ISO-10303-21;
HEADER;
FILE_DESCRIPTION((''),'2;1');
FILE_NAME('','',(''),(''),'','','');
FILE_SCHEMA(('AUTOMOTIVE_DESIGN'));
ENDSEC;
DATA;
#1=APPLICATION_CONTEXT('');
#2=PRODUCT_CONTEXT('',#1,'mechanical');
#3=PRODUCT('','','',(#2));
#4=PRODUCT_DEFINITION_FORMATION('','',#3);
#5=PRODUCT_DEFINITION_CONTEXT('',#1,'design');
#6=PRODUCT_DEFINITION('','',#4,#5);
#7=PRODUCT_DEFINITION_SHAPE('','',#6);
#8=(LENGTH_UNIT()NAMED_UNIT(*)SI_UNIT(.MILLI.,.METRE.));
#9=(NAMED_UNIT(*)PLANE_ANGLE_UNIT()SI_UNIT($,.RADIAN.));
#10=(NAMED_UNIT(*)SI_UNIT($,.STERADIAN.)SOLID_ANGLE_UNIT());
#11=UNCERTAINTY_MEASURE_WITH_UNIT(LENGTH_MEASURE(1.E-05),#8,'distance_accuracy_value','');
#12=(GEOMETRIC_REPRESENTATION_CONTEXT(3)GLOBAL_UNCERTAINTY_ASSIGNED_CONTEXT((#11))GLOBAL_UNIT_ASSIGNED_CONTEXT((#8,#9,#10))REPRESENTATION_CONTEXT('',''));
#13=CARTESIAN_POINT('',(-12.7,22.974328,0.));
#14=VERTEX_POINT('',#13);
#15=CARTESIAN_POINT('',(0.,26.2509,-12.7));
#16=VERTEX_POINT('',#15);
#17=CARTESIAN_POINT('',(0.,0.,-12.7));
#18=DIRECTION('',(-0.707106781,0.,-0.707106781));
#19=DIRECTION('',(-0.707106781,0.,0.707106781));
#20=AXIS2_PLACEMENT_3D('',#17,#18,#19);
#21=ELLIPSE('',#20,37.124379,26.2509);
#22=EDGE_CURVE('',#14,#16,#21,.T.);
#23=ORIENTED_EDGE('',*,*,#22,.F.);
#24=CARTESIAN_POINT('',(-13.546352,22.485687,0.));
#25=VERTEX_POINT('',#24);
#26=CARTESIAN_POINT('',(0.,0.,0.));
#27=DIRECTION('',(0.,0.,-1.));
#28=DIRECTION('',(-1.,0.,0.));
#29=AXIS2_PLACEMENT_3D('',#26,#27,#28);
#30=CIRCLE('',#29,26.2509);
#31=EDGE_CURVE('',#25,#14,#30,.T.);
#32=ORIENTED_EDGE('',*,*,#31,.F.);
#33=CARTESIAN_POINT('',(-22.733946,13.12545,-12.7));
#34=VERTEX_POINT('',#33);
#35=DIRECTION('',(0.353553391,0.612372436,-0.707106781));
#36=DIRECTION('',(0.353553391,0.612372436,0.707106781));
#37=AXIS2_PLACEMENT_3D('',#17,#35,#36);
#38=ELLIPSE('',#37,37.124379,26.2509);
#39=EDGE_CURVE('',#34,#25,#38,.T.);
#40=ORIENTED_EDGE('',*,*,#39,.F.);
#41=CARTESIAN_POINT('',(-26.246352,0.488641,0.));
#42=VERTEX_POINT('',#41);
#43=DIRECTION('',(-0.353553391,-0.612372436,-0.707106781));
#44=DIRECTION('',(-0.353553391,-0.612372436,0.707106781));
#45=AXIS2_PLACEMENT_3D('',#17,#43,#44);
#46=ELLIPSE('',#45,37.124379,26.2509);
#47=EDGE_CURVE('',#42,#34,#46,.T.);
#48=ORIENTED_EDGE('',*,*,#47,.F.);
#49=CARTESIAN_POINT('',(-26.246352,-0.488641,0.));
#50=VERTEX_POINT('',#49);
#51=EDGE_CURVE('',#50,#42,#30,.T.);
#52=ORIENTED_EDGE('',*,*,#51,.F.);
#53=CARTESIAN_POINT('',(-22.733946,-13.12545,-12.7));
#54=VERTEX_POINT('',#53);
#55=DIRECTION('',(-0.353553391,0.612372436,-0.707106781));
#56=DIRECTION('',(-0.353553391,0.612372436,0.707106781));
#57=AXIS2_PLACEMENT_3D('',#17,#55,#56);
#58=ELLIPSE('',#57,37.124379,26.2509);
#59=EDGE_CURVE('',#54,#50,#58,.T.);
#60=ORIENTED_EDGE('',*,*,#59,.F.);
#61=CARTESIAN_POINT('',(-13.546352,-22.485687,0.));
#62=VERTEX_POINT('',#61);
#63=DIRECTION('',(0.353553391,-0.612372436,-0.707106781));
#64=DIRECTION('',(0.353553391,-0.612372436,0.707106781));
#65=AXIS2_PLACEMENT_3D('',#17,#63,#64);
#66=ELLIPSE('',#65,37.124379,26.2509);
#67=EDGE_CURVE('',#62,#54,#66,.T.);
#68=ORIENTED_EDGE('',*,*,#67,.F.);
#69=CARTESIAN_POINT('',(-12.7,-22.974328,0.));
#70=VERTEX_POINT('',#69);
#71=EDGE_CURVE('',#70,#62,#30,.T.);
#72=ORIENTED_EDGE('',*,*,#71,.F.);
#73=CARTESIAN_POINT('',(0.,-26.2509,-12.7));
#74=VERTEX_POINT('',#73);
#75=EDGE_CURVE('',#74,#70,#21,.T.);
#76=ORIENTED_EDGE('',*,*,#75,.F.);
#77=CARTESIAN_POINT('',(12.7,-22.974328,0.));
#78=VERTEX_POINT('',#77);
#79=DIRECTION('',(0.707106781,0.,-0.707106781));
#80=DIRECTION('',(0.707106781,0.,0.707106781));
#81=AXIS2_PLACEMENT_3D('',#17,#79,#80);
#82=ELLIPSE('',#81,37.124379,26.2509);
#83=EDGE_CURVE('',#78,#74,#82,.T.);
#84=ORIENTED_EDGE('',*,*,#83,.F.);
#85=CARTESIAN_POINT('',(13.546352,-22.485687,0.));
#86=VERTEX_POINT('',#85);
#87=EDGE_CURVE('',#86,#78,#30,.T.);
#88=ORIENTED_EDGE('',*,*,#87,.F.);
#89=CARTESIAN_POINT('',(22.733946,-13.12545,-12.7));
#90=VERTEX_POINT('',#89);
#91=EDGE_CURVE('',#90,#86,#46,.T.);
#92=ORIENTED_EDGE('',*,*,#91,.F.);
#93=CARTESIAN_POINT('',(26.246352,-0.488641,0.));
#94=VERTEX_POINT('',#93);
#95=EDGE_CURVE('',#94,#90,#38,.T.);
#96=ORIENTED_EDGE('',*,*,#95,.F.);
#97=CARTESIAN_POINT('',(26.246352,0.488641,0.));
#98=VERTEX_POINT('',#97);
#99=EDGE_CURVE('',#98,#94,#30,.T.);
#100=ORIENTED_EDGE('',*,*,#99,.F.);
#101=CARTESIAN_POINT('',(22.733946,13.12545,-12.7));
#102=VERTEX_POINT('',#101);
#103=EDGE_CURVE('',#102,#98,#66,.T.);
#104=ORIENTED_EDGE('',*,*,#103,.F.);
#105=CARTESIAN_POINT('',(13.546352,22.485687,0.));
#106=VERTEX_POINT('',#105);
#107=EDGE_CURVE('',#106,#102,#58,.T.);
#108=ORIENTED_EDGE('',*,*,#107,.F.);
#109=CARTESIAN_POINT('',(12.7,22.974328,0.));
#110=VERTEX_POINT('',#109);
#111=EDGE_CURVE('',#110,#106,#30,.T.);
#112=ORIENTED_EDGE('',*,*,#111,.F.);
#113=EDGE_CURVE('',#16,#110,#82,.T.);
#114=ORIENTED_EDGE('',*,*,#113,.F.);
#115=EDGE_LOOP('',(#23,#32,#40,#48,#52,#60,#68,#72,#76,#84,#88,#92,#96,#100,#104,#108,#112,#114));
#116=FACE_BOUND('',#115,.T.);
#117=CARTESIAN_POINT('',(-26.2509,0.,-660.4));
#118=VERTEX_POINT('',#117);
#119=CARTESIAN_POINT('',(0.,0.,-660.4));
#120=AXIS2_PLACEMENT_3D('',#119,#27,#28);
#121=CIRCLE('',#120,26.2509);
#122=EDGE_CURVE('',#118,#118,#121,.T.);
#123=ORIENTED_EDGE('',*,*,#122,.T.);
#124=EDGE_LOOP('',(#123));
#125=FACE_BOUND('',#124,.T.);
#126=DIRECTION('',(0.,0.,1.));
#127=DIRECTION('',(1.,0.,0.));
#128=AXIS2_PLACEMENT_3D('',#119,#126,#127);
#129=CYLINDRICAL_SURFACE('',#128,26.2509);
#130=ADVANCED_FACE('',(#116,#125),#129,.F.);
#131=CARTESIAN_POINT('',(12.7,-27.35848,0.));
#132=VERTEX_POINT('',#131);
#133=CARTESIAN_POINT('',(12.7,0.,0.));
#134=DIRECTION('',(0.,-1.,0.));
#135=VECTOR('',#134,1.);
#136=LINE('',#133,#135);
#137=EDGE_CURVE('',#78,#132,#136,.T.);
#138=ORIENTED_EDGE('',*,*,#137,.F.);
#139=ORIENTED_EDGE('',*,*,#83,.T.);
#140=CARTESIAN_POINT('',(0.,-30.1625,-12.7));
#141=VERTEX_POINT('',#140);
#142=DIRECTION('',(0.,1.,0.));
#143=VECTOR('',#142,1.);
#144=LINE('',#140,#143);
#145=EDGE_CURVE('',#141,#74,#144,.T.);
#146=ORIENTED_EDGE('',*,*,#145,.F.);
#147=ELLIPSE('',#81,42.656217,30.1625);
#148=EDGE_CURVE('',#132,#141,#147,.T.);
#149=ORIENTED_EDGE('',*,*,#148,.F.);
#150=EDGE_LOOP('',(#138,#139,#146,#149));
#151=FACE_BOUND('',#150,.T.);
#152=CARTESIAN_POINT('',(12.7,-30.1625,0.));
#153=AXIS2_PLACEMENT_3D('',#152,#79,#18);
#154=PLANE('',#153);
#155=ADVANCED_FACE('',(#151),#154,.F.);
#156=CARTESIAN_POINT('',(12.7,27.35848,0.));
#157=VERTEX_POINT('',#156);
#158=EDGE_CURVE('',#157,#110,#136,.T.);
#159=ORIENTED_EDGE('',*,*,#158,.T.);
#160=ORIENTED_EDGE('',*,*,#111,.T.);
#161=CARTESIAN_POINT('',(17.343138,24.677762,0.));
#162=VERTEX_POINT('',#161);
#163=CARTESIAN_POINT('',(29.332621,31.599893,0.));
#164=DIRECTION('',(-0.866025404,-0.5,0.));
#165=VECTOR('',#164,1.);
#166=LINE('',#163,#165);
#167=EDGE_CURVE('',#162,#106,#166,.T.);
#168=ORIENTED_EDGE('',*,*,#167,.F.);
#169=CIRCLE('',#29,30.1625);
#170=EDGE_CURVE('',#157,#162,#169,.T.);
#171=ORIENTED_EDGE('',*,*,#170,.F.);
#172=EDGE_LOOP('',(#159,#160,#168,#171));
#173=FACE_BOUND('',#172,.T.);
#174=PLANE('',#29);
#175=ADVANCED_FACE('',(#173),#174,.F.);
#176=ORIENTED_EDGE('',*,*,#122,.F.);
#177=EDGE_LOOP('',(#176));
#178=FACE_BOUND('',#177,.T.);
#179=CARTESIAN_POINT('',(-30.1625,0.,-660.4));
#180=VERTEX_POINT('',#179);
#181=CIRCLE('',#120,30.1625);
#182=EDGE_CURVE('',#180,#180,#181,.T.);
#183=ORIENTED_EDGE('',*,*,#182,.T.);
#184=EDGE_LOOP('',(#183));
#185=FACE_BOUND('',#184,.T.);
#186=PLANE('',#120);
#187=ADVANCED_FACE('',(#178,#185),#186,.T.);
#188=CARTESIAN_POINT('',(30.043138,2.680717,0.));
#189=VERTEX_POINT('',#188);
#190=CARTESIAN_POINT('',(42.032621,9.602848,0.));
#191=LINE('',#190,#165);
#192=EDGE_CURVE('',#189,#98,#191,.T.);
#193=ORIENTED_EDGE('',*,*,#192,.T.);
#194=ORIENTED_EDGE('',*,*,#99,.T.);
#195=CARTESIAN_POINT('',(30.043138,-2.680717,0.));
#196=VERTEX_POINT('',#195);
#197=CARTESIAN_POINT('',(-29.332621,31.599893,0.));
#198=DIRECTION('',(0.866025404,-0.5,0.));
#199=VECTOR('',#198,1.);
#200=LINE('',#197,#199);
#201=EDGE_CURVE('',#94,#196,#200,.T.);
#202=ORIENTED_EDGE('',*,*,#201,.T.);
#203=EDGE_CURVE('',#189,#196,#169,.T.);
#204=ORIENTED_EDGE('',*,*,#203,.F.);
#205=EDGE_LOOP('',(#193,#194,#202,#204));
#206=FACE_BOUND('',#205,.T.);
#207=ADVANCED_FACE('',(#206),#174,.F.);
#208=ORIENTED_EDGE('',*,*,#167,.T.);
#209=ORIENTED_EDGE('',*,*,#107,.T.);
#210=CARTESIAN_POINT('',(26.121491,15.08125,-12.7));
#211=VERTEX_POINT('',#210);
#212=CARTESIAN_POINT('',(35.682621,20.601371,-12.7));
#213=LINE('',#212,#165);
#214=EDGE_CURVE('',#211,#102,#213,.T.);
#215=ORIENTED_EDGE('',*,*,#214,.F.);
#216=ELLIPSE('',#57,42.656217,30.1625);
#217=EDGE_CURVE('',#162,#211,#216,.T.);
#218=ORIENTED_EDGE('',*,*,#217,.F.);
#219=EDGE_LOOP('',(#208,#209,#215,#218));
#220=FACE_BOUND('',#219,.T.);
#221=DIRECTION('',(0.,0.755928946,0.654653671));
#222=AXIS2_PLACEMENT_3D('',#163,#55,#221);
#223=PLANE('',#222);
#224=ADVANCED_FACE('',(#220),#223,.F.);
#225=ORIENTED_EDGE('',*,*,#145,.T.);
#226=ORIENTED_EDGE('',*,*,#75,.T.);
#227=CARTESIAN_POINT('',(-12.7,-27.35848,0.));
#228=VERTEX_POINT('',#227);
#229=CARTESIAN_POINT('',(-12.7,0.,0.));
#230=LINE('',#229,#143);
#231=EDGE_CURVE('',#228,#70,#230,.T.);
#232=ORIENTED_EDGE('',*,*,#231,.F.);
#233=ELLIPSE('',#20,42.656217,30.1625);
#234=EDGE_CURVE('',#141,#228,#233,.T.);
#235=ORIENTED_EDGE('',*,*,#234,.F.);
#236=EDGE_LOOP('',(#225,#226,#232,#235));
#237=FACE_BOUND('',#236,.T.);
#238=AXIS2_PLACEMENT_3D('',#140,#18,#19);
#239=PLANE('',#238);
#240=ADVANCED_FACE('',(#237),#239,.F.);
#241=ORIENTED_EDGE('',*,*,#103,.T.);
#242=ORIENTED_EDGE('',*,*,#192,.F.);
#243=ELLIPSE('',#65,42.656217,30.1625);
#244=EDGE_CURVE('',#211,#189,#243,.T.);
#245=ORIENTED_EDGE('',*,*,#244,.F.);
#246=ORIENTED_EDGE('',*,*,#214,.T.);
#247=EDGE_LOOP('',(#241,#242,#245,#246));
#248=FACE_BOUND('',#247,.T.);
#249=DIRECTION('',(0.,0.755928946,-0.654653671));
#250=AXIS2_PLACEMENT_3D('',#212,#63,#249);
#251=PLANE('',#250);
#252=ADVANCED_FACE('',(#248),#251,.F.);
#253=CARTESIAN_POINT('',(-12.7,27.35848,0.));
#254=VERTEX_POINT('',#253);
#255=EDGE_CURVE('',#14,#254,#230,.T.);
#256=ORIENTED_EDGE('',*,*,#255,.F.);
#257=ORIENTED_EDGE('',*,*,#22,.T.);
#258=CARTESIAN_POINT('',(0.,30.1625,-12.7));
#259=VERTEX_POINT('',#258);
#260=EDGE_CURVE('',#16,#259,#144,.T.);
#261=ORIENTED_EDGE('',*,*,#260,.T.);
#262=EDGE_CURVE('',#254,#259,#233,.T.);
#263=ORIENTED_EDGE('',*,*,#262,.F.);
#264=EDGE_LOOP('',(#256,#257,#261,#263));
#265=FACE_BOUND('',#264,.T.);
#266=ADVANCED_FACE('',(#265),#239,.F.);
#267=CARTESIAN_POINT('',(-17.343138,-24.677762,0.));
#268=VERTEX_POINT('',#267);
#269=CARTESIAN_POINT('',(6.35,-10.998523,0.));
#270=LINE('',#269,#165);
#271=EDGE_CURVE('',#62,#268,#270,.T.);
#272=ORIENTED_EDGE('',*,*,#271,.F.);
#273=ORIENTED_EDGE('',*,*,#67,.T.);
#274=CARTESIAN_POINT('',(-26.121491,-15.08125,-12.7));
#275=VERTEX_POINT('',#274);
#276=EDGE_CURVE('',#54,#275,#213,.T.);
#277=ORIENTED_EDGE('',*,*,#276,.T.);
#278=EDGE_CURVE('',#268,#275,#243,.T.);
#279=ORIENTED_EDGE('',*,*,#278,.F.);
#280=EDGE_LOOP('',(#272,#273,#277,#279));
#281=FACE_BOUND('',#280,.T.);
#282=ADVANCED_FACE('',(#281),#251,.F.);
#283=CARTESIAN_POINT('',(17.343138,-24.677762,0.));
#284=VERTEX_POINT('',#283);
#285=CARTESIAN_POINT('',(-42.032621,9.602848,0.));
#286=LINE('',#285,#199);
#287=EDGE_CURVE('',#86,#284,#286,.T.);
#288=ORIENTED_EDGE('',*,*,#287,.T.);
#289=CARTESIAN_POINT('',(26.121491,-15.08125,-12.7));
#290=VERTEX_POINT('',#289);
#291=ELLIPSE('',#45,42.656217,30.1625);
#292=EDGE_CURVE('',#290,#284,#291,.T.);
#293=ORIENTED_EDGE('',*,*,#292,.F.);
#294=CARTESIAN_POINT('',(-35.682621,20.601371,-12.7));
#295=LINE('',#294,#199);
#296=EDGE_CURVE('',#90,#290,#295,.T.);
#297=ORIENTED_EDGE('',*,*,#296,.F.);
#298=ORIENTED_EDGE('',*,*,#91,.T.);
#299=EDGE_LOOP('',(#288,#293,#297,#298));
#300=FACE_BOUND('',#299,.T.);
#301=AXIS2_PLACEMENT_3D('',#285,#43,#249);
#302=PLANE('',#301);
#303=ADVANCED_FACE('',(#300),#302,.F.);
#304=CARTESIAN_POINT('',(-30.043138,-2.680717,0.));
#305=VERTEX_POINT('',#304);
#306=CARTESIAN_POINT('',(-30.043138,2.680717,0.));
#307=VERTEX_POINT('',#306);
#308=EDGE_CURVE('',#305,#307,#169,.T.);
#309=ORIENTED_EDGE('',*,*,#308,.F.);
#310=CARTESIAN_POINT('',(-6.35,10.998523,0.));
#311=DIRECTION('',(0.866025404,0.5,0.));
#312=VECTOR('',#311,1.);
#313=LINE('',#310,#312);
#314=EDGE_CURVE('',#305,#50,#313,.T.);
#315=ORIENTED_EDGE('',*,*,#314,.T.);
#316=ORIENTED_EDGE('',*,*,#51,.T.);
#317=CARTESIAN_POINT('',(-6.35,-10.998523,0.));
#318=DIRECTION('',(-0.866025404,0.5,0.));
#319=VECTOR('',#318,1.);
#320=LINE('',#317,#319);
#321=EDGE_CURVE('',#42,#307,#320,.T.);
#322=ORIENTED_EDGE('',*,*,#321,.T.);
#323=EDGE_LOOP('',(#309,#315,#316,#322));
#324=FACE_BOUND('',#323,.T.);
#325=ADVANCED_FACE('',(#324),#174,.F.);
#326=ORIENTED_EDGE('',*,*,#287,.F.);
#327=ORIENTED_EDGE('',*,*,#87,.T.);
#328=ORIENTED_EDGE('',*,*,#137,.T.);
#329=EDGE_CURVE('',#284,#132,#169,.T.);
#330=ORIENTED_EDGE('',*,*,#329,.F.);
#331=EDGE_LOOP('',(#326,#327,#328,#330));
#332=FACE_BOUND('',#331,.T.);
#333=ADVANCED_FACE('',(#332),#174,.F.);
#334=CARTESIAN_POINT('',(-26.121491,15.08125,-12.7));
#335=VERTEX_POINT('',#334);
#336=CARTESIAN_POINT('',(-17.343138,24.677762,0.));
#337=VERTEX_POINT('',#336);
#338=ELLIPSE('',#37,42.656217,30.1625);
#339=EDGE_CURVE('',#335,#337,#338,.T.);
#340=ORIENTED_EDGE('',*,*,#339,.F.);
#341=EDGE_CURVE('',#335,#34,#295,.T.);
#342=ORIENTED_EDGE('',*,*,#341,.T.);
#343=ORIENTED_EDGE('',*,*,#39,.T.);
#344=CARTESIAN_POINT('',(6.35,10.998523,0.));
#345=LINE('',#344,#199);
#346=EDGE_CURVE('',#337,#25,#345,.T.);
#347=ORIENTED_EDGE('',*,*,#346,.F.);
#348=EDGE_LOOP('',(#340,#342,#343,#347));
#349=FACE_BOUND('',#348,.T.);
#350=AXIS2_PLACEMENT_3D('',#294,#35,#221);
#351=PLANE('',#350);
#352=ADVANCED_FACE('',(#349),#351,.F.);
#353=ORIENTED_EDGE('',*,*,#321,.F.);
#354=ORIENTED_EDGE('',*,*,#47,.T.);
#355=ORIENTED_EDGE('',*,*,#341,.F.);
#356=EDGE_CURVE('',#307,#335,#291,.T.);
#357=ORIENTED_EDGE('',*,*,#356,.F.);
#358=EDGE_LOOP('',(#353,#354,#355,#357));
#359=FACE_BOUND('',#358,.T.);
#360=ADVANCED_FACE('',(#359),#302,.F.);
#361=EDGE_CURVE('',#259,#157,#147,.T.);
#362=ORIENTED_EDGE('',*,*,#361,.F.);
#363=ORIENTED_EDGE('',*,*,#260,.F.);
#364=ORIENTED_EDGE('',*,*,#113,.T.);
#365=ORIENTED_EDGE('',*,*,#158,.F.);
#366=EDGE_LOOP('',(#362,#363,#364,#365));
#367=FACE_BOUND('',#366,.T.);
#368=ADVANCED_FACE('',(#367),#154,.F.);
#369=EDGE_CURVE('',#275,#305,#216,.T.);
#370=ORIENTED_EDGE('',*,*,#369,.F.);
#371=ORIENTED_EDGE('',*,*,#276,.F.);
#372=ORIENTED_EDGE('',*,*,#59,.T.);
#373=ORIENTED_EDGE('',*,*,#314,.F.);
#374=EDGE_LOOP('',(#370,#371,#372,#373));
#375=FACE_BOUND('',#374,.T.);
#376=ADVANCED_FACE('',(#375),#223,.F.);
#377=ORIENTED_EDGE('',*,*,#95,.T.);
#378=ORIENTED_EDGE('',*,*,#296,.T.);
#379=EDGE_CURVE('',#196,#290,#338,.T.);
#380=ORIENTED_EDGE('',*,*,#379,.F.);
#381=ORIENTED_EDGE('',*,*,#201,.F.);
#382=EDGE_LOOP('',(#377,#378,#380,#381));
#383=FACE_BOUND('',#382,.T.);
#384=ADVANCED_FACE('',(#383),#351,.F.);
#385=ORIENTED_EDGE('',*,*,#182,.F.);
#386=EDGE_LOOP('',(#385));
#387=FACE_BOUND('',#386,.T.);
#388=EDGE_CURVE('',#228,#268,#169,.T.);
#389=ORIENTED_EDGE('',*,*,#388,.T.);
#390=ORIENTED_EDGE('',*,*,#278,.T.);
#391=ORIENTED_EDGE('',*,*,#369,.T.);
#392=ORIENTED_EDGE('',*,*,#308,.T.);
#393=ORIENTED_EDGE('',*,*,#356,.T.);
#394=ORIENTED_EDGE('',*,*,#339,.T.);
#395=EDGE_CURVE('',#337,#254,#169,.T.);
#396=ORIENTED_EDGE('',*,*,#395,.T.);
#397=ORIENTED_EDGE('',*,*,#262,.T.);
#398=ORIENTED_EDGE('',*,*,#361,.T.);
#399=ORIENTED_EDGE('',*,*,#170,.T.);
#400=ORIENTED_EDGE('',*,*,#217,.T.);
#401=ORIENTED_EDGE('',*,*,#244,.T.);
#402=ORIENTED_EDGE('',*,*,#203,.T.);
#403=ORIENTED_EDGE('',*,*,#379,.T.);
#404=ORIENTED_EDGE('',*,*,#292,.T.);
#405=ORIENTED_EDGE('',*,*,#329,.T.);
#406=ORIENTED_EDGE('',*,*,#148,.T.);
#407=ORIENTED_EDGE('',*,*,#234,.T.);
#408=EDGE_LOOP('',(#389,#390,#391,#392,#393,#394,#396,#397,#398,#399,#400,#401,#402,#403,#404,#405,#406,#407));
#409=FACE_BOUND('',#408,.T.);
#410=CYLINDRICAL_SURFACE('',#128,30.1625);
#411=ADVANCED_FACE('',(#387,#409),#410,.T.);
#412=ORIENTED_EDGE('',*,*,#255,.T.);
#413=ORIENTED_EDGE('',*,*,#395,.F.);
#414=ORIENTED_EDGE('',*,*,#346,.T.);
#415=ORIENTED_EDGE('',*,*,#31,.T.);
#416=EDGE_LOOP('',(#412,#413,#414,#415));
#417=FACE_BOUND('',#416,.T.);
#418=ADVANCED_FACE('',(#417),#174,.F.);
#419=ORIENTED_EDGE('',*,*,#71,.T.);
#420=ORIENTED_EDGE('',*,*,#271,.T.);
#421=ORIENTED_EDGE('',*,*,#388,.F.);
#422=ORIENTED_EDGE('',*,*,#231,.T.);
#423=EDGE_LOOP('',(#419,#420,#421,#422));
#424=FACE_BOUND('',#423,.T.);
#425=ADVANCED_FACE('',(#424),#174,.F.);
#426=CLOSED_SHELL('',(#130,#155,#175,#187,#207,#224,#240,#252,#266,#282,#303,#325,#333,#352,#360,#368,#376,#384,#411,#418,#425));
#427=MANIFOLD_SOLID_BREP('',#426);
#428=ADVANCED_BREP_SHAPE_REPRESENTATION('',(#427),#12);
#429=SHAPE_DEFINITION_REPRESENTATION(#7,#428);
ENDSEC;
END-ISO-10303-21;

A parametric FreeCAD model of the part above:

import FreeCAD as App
import Part
import Sketcher
from FreeCAD import Vector
Q = App.Units.Quantity


def add_polygon(sketch, points):
    """Adds a closed chain of lines whose ends are joined by coincident constraints."""
    first, n = sketch.GeometryCount, len(points)
    for a, b in zip(points, points[1:] + points[:1]):
        sketch.addGeometry(Part.LineSegment(App.Vector(*a, 0), App.Vector(*b, 0)), False)
    for i in range(n):
        sketch.addConstraint(Sketcher.Constraint("Coincident", first + i, 2, first + (i + 1) % n, 1))

doc = App.newDocument("Part")
body = doc.addObject("PartDesign::Body", "Body")

# Sketch on XY plane
sketch1 = body.newObject("Sketcher::SketchObject", "Sketch")
sketch1.AttachmentSupport = (doc.getObject("XY_Plane"), [""])
sketch1.MapMode = "FlatFace"
sketch1.addGeometry([
    Part.Circle(Vector(0, 0, 0), Vector(0, 0, 1), 30),
    Part.Circle(Vector(0, 0, 0), Vector(0, 0, 1), 26),
], False)
sketch1.addConstraint([
    Sketcher.Constraint("Coincident", 0, 3, -1, 1),
    Sketcher.Constraint("Coincident", 1, 3, -1, 1),
    Sketcher.Constraint("Diameter", 0, Q("2.375 in")),
    Sketcher.Constraint("Diameter", 1, Q("2.067 in")),
])
pad1 = body.newObject("PartDesign::Pad", "Pad")
pad1.Profile = sketch1
pad1.Length = Q("26 in")
pad1.Reversed = True

# Sketch on XZ plane
sketch2 = body.newObject("Sketcher::SketchObject", "Sketch001")
sketch2.AttachmentSupport = (doc.getObject("XZ_Plane"), [""])
sketch2.MapMode = "FlatFace"
add_polygon(sketch2, [(0, -13), (-13, 0), (13, 0)])  # lines 0-2
sketch2.addConstraint([
    Sketcher.Constraint("Horizontal", 1),
    Sketcher.Constraint("Symmetric", 0, 2, 1, 2, -1, 1),
    Sketcher.Constraint("PointOnObject", 2, 2, -2),
    Sketcher.Constraint("Perpendicular", 0, 2),
    Sketcher.Constraint("DistanceX", 1, 1, 1, 2, Q("1 in")),
])
pocket1 = body.newObject("PartDesign::Pocket", "Pocket")
pocket1.Profile = sketch2
pocket1.Type = "ThroughAll"
pocket1.Midplane = True

# Sketch on an angled plane
sketch3 = body.newObject("Sketcher::SketchObject", "Sketch002")
sketch3.Placement = App.Placement(Vector(0, 0, 0), App.Rotation(Vector(0, 0, -1), Vector(0.5, 0.866025404, 0), Vector(0.866025404, -0.5, 0), "ZXY"))
add_polygon(sketch3, [(0, 13), (0, -13), (13, 0)])  # lines 0-2
sketch3.addConstraint([
    Sketcher.Constraint("Vertical", 0),
    Sketcher.Constraint("Symmetric", 0, 2, 2, 2, -1, 1),
    Sketcher.Constraint("PointOnObject", 1, 2, -1),
    Sketcher.Constraint("Perpendicular", 1, 2),
    Sketcher.Constraint("DistanceY", 0, 2, 0, 1, Q("1 in")),
])
pocket2 = body.newObject("PartDesign::Pocket", "Pocket001")
pocket2.Profile = sketch3
pocket2.Type = "ThroughAll"
pocket2.Midplane = True

# Sketch on an angled plane
sketch4 = body.newObject("Sketcher::SketchObject", "Sketch003")
sketch4.Placement = App.Placement(Vector(0, 0, 0), App.Rotation(Vector(0, 0, -1), Vector(0.5, -0.866025404, 0), Vector(-0.866025404, -0.5, 0), "ZXY"))
add_polygon(sketch4, [(0, 13), (0, -13), (13, 0)])  # lines 0-2
sketch4.addConstraint([
    Sketcher.Constraint("Vertical", 0),
    Sketcher.Constraint("Symmetric", 0, 2, 2, 2, -1, 1),
    Sketcher.Constraint("PointOnObject", 1, 2, -1),
    Sketcher.Constraint("Perpendicular", 1, 2),
    Sketcher.Constraint("DistanceY", 0, 2, 0, 1, Q("1 in")),
])
pocket3 = body.newObject("PartDesign::Pocket", "Pocket002")
pocket3.Profile = sketch4
pocket3.Type = "ThroughAll"
pocket3.Midplane = True

doc.recompute()
